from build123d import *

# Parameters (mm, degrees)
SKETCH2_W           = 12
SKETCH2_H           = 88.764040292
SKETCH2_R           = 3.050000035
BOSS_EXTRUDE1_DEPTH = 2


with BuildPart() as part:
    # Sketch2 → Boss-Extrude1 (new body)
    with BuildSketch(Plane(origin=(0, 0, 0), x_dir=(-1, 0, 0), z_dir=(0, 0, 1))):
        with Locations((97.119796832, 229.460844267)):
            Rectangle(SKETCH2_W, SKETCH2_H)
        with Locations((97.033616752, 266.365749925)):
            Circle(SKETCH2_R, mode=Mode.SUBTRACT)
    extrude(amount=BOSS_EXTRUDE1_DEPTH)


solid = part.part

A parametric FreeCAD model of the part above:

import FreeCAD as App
import Part
import Sketcher

V = App.Vector
Q = App.Units.Quantity

doc = App.newDocument("Part")
body = doc.addObject("PartDesign::Body", "Body")

# Sketch on XY plane
sketch1 = body.newObject("Sketcher::SketchObject", "Sketch")
sketch1.AttachmentSupport = (doc.getObject("XY_Plane"), [""])
sketch1.MapMode = "FlatFace"
sketch1.addGeometry(Part.LineSegment(V(-91.1, -273.8, 0), V(-91.1, -185.1, 0)), False)
sketch1.addGeometry(Part.LineSegment(V(-91.1, -185.1, 0), V(-103.1, -185.1, 0)), False)
sketch1.addGeometry(Part.LineSegment(V(-103.1, -185.1, 0), V(-103.1, -273.8, 0)), False)
sketch1.addGeometry(Part.LineSegment(V(-103.1, -273.8, 0), V(-91.1, -273.8, 0)), False)
sketch1.addGeometry(Part.Circle(V(-97, -266.4, 0), V(0, 0, 1), 3.1), False)
sketch1.addConstraint(Sketcher.Constraint("Coincident", 0, 2, 1, 1))
sketch1.addConstraint(Sketcher.Constraint("Coincident", 1, 2, 2, 1))
sketch1.addConstraint(Sketcher.Constraint("Coincident", 2, 2, 3, 1))
sketch1.addConstraint(Sketcher.Constraint("Coincident", 3, 2, 0, 1))
sketch1.addConstraint(Sketcher.Constraint("Vertical", 0))
sketch1.addConstraint(Sketcher.Constraint("Horizontal", 1))
sketch1.addConstraint(Sketcher.Constraint("Vertical", 2))
sketch1.addConstraint(Sketcher.Constraint("Horizontal", 3))
sketch1.addConstraint(Sketcher.Constraint("Diameter", 4, Q("6.1 mm")))
sketch1.addConstraint(Sketcher.Constraint("DistanceX", 1, 2, 1, 1, Q("12 mm")))
sketch1.addConstraint(Sketcher.Constraint("DistanceY", 0, 1, 0, 2, Q("88.76404 mm")))
sketch1.addConstraint(Sketcher.Constraint("DistanceY", 4, 3, -1, 1, Q("266.36575 mm")))
sketch1.addConstraint(Sketcher.Constraint("DistanceX", 4, 3, 0, 2, Q("5.91382 mm")))
sketch1.addConstraint(Sketcher.Constraint("DistanceX", 4, 3, -1, 1, Q("97.033617 mm")))
sketch1.addConstraint(Sketcher.Constraint("DistanceY", 0, 2, -1, 1, Q("185.078824 mm")))
pad1 = body.newObject("PartDesign::Pad", "Pad")
pad1.Profile = sketch1
pad1.Length = 2

doc.recompute()
